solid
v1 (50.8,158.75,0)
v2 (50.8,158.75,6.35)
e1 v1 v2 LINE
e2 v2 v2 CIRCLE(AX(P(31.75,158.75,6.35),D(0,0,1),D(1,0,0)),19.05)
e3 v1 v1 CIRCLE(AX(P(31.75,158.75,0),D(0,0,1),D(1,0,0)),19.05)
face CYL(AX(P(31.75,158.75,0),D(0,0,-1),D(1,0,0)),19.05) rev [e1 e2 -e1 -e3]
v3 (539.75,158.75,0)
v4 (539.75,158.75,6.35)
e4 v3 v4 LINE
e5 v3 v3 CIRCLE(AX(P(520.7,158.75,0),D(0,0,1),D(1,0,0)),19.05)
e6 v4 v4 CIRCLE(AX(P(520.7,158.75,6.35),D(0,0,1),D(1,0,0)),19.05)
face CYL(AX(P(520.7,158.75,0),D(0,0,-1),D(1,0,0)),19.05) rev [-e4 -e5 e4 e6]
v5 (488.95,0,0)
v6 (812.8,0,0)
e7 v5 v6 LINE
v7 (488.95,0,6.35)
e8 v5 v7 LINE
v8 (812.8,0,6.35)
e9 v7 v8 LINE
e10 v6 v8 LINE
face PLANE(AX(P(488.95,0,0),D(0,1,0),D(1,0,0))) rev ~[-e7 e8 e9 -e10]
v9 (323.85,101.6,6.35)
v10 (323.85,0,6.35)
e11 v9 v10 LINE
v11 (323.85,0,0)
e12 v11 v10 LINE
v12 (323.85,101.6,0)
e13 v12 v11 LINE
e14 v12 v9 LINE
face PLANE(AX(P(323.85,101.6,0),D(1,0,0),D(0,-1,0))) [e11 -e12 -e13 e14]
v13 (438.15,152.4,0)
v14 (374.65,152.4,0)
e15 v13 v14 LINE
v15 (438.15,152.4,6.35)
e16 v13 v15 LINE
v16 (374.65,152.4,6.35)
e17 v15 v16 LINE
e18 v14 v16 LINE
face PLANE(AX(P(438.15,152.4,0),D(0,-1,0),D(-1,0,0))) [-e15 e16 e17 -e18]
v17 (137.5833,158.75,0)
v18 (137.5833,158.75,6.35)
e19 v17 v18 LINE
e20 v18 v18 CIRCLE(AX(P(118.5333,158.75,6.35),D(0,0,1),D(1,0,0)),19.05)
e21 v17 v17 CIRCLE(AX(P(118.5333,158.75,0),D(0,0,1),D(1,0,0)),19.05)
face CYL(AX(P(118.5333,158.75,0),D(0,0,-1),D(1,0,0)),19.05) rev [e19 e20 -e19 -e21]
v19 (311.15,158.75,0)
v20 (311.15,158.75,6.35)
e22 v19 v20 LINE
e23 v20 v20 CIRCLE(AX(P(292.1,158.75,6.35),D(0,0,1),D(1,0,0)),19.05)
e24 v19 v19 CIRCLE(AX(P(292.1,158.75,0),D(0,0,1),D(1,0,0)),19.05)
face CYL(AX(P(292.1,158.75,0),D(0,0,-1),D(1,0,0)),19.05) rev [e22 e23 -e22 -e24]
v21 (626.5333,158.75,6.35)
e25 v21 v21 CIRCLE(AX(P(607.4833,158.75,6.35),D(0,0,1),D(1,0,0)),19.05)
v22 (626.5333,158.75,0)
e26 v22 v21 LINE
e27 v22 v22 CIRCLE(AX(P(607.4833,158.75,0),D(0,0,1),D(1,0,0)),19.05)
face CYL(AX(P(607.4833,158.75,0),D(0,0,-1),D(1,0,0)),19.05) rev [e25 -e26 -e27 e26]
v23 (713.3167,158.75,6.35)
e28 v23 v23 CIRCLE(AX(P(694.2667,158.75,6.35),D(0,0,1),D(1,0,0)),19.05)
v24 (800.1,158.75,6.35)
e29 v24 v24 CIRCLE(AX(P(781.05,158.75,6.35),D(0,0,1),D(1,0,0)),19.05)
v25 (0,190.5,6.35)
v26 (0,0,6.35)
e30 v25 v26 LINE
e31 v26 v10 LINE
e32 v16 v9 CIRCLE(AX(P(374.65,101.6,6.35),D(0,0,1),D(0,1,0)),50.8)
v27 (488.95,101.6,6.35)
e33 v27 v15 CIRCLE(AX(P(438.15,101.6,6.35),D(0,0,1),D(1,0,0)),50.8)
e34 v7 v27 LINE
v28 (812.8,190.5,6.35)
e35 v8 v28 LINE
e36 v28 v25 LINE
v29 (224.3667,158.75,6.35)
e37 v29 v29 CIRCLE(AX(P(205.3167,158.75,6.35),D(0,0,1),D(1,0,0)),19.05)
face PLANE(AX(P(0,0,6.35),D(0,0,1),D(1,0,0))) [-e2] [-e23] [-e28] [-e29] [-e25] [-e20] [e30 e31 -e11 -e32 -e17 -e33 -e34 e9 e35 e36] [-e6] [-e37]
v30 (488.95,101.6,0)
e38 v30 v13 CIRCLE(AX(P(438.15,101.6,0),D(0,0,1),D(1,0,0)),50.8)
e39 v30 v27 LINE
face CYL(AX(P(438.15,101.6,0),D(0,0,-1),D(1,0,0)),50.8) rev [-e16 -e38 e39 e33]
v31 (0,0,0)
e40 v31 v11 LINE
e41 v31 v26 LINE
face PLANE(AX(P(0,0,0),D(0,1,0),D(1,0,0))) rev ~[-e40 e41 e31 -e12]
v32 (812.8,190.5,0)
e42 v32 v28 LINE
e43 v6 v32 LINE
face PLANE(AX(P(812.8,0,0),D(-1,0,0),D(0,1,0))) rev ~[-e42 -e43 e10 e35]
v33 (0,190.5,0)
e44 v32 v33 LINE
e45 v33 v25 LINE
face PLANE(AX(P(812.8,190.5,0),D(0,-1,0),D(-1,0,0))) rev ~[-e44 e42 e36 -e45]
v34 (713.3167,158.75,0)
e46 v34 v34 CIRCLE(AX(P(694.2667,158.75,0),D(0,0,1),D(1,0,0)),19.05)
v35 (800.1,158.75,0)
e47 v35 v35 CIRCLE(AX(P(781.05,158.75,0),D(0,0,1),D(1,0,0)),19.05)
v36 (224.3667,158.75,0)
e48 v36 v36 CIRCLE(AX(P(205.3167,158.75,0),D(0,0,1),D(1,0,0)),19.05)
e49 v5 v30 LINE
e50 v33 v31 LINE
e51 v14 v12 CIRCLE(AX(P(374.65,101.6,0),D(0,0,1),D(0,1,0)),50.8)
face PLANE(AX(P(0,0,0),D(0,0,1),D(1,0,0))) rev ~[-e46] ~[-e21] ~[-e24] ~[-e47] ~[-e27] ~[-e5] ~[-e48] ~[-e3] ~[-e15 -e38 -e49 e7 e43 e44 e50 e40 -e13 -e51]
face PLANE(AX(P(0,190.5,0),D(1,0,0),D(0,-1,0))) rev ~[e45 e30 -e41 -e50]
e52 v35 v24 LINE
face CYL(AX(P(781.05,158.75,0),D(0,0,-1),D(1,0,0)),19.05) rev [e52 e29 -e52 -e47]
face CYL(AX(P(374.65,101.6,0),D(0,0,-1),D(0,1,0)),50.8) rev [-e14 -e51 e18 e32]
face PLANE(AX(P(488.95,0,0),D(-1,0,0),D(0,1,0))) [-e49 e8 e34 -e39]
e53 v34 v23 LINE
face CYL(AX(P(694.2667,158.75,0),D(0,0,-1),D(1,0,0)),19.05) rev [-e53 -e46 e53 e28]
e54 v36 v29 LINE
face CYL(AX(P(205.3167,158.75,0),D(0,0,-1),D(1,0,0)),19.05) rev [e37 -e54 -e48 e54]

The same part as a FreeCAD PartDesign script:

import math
import FreeCAD as App
import Part
import Sketcher
Q = App.Units.Quantity

doc = App.newDocument("Part")
body = doc.addObject("PartDesign::Body", "Body")

sketch1 = body.newObject("Sketcher::SketchObject", "Sketch")
sketch1.AttachmentSupport = (doc.getObject("XY_Plane"), [""])
sketch1.MapMode = "FlatFace"
sketch1.addGeometry([
    Part.LineSegment(App.Vector(489, 0, 0), App.Vector(813, 0, 0)),
    Part.LineSegment(App.Vector(813, 0, 0), App.Vector(813, 190, 0)),
    Part.LineSegment(App.Vector(813, 190, 0), App.Vector(0, 190, 0)),
    Part.LineSegment(App.Vector(0, 190, 0), App.Vector(0, 0, 0)),
    Part.LineSegment(App.Vector(0, 0, 0), App.Vector(324, 0, 0)),
    Part.LineSegment(App.Vector(324, 0, 0), App.Vector(324, 102, 0)),
    Part.ArcOfCircle(Part.Circle(App.Vector(375, 102, 0), App.Vector(0, 0, 1), 51), math.radians(90), math.radians(180)),
    Part.LineSegment(App.Vector(375, 152, 0), App.Vector(438, 152, 0)),
    Part.ArcOfCircle(Part.Circle(App.Vector(438, 102, 0), App.Vector(0, 0, 1), 51), math.radians(0), math.radians(90)),
    Part.LineSegment(App.Vector(489, 102, 0), App.Vector(489, 0, 0)),
    Part.Circle(App.Vector(32, 159, 0), App.Vector(0, 0, 1), 19),
    Part.Circle(App.Vector(119, 159, 0), App.Vector(0, 0, 1), 19),
    Part.Circle(App.Vector(205, 159, 0), App.Vector(0, 0, 1), 19),
    Part.Circle(App.Vector(292, 159, 0), App.Vector(0, 0, 1), 19),
    Part.Circle(App.Vector(521, 159, 0), App.Vector(0, 0, 1), 19),
    Part.Circle(App.Vector(607, 159, 0), App.Vector(0, 0, 1), 19),
    Part.Circle(App.Vector(694, 159, 0), App.Vector(0, 0, 1), 19),
    Part.Circle(App.Vector(781, 159, 0), App.Vector(0, 0, 1), 19),
], False)
sketch1.addConstraint([
    Sketcher.Constraint("Coincident", 0, 2, 1, 1),
    Sketcher.Constraint("Coincident", 1, 2, 2, 1),
    Sketcher.Constraint("Coincident", 2, 2, 3, 1),
    Sketcher.Constraint("Coincident", 3, 2, 4, 1),
    Sketcher.Constraint("Coincident", 4, 2, 5, 1),
    Sketcher.Constraint("Tangent", 5, 2, 6, 2),
    Sketcher.Constraint("Tangent", 6, 1, 7, 1),
    Sketcher.Constraint("Tangent", 7, 2, 8, 2),
    Sketcher.Constraint("Tangent", 8, 1, 9, 1),
    Sketcher.Constraint("Coincident", 9, 2, 0, 1),
    Sketcher.Constraint("Horizontal", 0),
    Sketcher.Constraint("Vertical", 1),
    Sketcher.Constraint("Horizontal", 2),
    Sketcher.Constraint("Vertical", 3),
    Sketcher.Constraint("Horizontal", 4),
    Sketcher.Constraint("Vertical", 5),
    Sketcher.Constraint("Horizontal", 7),
    Sketcher.Constraint("Vertical", 9),
    Sketcher.Constraint("Coincident", 3, 2, -1, 1),
    Sketcher.Constraint("Equal", 6, 8),
    Sketcher.Constraint("Equal", 10, 11),
    Sketcher.Constraint("Equal", 11, 12),
    Sketcher.Constraint("Equal", 12, 13),
    Sketcher.Constraint("Equal", 13, 14),
    Sketcher.Constraint("Equal", 14, 15),
    Sketcher.Constraint("Equal", 15, 16),
    Sketcher.Constraint("Equal", 16, 17),
    Sketcher.Constraint("PointOnObject", 0, 2, -1),
    Sketcher.Constraint("Horizontal", 10, 3, 11, 3),
    Sketcher.Constraint("Horizontal", 11, 3, 12, 3),
    Sketcher.Constraint("Horizontal", 12, 3, 13, 3),
    Sketcher.Constraint("Horizontal", 13, 3, 14, 3),
    Sketcher.Constraint("Horizontal", 14, 3, 15, 3),
    Sketcher.Constraint("Horizontal", 15, 3, 16, 3),
    Sketcher.Constraint("Horizontal", 16, 3, 17, 3),
    Sketcher.Constraint("Equal", 0, 4),
    Sketcher.Constraint("Radius", 6, Q("2 in")),
    Sketcher.Constraint("Diameter", 10, Q("1.5 in")),
    Sketcher.Constraint("DistanceX", 2, 2, 2, 1, Q("32 in")),
    Sketcher.Constraint("DistanceY", 1, 1, 1, 2, Q("7.5 in")),
    Sketcher.Constraint("DistanceY", -1, 1, 6, 1, Q("6 in")),
    Sketcher.Constraint("DistanceX", 13, 3, 14, 3, Q("9 in")),
    Sketcher.Constraint("DistanceX", 0, 1, 0, 2, Q("12.75 in")),
    Sketcher.Constraint("DistanceX", -1, 1, 10, 3, Q("1.25 in")),
    Sketcher.Constraint("DistanceX", 10, 3, 13, 3, Q("10.25 in")),
    Sketcher.Constraint("DistanceX", 14, 3, 17, 3, Q("10.25 in")),
    Sketcher.Constraint("DistanceY", 17, 3, 1, 2, Q("1.25 in")),
    Sketcher.Constraint("DistanceX", 10, 3, 11, 3, Q("86.7833 mm")),
    Sketcher.Constraint("DistanceX", 11, 3, 12, 3, Q("86.7834 mm")),
    Sketcher.Constraint("DistanceX", 14, 3, 15, 3, Q("86.7833 mm")),
    Sketcher.Constraint("DistanceX", 15, 3, 16, 3, Q("86.7834 mm")),
])
pad1 = body.newObject("PartDesign::Pad", "Pad")
pad1.Profile = sketch1
pad1.Length = Q("0.25 in")

doc.recompute()
